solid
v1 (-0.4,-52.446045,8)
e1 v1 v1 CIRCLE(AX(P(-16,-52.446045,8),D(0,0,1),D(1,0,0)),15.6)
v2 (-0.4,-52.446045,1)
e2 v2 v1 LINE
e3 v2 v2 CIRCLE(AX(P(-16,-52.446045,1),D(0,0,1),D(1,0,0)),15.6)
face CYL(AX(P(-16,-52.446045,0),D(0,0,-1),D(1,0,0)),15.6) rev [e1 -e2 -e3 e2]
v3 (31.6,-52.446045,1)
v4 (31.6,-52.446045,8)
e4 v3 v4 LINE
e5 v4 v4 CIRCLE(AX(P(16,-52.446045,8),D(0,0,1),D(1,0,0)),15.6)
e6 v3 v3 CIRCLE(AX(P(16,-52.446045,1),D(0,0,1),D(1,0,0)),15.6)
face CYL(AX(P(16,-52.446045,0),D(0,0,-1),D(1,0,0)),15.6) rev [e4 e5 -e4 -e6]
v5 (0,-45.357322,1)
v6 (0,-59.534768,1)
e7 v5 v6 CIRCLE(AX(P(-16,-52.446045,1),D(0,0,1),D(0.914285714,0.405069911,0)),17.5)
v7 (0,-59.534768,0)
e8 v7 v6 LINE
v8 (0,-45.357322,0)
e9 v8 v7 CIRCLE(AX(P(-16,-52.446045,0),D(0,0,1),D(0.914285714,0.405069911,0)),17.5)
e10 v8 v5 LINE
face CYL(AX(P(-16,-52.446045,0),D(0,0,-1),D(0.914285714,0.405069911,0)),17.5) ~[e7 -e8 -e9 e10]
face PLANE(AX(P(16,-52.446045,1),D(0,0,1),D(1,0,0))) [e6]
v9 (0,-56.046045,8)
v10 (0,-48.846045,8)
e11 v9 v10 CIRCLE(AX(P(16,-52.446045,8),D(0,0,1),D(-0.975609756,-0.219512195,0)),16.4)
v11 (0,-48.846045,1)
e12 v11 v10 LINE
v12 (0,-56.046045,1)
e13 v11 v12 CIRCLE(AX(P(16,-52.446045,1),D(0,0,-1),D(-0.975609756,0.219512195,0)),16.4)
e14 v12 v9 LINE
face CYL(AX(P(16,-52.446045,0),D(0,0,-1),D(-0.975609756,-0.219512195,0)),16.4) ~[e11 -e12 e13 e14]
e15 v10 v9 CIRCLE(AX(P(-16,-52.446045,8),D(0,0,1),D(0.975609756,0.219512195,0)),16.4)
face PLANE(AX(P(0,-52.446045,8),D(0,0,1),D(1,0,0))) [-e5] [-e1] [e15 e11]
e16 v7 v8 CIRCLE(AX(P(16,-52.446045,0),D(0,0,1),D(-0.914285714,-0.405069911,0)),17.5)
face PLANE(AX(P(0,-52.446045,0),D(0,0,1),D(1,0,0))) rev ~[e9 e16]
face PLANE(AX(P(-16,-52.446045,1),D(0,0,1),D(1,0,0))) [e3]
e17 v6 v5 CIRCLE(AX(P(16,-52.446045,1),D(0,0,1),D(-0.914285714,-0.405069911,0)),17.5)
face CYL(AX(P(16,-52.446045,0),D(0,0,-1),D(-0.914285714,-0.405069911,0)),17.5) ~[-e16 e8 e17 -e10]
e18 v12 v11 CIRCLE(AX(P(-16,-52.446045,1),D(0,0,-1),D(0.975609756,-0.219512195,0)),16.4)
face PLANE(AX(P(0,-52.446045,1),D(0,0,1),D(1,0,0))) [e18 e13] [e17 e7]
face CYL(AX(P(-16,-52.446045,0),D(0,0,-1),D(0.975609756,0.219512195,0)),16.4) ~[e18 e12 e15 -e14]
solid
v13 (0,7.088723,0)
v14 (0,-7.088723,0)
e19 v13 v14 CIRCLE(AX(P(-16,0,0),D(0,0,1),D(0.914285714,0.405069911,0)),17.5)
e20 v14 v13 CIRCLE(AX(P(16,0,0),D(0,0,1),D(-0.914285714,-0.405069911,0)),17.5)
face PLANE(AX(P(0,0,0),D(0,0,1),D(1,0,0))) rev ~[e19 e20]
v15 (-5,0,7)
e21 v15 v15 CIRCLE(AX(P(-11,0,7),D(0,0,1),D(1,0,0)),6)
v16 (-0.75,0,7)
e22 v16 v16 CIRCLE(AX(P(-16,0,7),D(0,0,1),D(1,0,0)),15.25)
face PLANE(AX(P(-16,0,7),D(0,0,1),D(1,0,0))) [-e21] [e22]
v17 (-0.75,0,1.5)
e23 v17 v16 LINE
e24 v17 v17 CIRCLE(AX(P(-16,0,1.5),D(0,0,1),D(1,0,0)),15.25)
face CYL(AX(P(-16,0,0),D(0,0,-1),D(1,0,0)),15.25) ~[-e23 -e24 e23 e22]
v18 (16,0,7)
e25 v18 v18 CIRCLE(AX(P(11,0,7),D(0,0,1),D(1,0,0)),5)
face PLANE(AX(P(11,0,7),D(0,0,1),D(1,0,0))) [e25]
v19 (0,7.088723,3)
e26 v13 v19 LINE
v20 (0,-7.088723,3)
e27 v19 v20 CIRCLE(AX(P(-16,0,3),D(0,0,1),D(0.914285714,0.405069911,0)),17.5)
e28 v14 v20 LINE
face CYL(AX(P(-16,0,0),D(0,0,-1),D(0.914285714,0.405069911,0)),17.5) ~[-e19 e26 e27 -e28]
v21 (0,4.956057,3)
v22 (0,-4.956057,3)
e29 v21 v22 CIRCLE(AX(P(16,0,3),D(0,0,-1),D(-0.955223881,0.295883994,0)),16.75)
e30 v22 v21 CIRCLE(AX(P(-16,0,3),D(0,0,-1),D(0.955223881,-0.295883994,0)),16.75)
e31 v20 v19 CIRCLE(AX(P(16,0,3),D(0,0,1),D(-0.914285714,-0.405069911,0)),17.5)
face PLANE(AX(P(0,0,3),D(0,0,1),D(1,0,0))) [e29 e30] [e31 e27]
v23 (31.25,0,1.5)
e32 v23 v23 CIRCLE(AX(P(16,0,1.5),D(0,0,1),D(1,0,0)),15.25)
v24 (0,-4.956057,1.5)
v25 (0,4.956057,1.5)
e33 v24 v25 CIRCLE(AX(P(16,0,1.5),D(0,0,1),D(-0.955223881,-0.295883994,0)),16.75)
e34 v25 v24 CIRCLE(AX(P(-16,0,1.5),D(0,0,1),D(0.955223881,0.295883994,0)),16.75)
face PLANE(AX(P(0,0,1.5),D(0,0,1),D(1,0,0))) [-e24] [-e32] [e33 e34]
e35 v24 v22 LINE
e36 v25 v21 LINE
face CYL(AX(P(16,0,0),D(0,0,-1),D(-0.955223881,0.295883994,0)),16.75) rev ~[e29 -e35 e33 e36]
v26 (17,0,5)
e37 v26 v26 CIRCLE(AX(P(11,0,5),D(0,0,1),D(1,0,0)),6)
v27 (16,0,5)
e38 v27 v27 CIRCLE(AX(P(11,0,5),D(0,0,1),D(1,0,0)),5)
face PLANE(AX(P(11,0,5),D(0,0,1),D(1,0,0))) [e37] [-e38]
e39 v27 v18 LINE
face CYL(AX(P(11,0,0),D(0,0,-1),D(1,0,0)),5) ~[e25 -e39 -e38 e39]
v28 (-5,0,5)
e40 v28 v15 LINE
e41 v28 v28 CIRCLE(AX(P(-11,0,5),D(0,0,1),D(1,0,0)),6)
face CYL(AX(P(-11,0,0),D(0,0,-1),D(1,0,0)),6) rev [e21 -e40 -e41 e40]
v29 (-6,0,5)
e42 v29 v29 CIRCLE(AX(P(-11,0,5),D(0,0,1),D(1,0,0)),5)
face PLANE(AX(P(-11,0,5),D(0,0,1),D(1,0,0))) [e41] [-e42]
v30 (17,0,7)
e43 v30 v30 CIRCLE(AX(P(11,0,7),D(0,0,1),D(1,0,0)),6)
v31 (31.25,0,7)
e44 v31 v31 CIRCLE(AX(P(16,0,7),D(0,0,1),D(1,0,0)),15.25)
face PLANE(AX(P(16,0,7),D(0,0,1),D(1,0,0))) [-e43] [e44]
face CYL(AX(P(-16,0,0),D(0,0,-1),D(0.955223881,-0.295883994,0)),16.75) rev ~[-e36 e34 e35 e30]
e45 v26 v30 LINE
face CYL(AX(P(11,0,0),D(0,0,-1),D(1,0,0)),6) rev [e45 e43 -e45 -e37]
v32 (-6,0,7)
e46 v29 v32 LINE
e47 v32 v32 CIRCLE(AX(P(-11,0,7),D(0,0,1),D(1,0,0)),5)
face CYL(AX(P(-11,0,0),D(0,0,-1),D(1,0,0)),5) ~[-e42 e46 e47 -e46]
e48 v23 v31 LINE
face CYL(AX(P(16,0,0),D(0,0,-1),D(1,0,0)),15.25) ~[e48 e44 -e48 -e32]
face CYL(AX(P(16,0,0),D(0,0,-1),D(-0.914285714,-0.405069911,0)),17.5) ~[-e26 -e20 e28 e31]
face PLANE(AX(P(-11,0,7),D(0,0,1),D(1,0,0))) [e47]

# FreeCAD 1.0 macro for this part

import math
import FreeCAD as App
import Part
import Sketcher

V = App.Vector
Q = App.Units.Quantity

doc = App.newDocument("Part")
body = doc.addObject("PartDesign::Body", "Body")

# Sketch on XY plane
sketch1 = doc.addObject("Sketcher::SketchObject", "Sketch")
body.addObject(sketch1)
sketch1.AttachmentSupport = (doc.XY_Plane, [""])
sketch1.MapMode = "FlatFace"
sketch1.addGeometry(Part.Circle(V(-11, 0, 0), V(0, 0, 1), 5), False)
sketch1.addConstraint(Sketcher.Constraint("PointOnObject", 0, 3, -1))
sketch1.addConstraint(Sketcher.Constraint("Diameter", 0, Q("10 mm")))
sketch1.addConstraint(Sketcher.Constraint("DistanceX", 0, 3, -1, 1, Q("11 mm")))
pad1 = doc.addObject("PartDesign::Pad", "Pad")
body.addObject(pad1)
pad1.Profile = sketch1
pad1.Length = 7
body2 = doc.addObject("PartDesign::Body", "Body001")

# Sketch on XY plane
sketch2 = doc.addObject("Sketcher::SketchObject", "Sketch001")
body2.addObject(sketch2)
sketch2.AttachmentSupport = (doc.getObject("XY_Plane001"), [""])
sketch2.MapMode = "FlatFace"
sketch2.addGeometry(Part.Circle(V(11, 0, 0), V(0, 0, 1), 5), False)
sketch2.addConstraint(Sketcher.Constraint("PointOnObject", 0, 3, -1))
sketch2.addConstraint(Sketcher.Constraint("Diameter", 0, Q("10 mm")))
sketch2.addConstraint(Sketcher.Constraint("DistanceX", -1, 1, 0, 3, Q("11 mm")))
pad2 = doc.addObject("PartDesign::Pad", "Pad001")
body2.addObject(pad2)
pad2.Profile = sketch2
pad2.Length = 7
body3 = doc.addObject("PartDesign::Body", "Body002")

# Sketch on XY plane
sketch3 = doc.addObject("Sketcher::SketchObject", "Sketch002")
body3.addObject(sketch3)
sketch3.AttachmentSupport = (doc.getObject("XY_Plane002"), [""])
sketch3.MapMode = "FlatFace"
sketch3.addGeometry(Part.Circle(V(-16, 0, 0), V(0, 0, 1), 15), False)
sketch3.addGeometry(Part.Circle(V(-11, 0, 0), V(0, 0, 1), 6), False)
sketch3.addConstraint(Sketcher.Constraint("PointOnObject", 0, 3, -1))
sketch3.addConstraint(Sketcher.Constraint("PointOnObject", 1, 3, -1))
sketch3.addConstraint(Sketcher.Constraint("Diameter", 1, Q("12 mm")))
sketch3.addConstraint(Sketcher.Constraint("Diameter", 0, Q("30.5 mm")))
sketch3.addConstraint(Sketcher.Constraint("DistanceX", 0, 3, -1, 1, Q("16 mm")))
sketch3.addConstraint(Sketcher.Constraint("DistanceX", 1, 3, -1, 1, Q("11 mm")))
pad3 = doc.addObject("PartDesign::Pad", "Pad002")
body3.addObject(pad3)
pad3.Profile = sketch3
pad3.Length = 7
body4 = doc.addObject("PartDesign::Body", "Body003")

# Sketch on XY plane
sketch4 = doc.addObject("Sketcher::SketchObject", "Sketch003")
body4.addObject(sketch4)
sketch4.AttachmentSupport = (doc.getObject("XY_Plane003"), [""])
sketch4.MapMode = "FlatFace"
sketch4.addGeometry(Part.Circle(V(16, 0, 0), V(0, 0, 1), 15), False)
sketch4.addGeometry(Part.Circle(V(11, 0, 0), V(0, 0, 1), 6), False)
sketch4.addConstraint(Sketcher.Constraint("PointOnObject", 0, 3, -1))
sketch4.addConstraint(Sketcher.Constraint("PointOnObject", 1, 3, -1))
sketch4.addConstraint(Sketcher.Constraint("Diameter", 1, Q("12 mm")))
sketch4.addConstraint(Sketcher.Constraint("Diameter", 0, Q("30.5 mm")))
sketch4.addConstraint(Sketcher.Constraint("DistanceX", -1, 1, 0, 3, Q("16 mm")))
sketch4.addConstraint(Sketcher.Constraint("DistanceX", -1, 1, 1, 3, Q("11 mm")))
pad4 = doc.addObject("PartDesign::Pad", "Pad003")
body4.addObject(pad4)
pad4.Profile = sketch4
pad4.Length = 7
body.AllowCompound = True
doc.recompute()

boolean = doc.addObject("PartDesign::Boolean", "Boolean")
body.addObject(boolean)
boolean.Type = "Fuse"
boolean.addObjects([body3])

# Sketch on XY plane
sketch5 = doc.addObject("Sketcher::SketchObject", "Sketch004")
body.addObject(sketch5)
sketch5.AttachmentSupport = (doc.XY_Plane, [""])
sketch5.MapMode = "FlatFace"
sketch5.addGeometry(Part.Circle(V(-11, 0, 0), V(0, 0, 1), 6), False)
sketch5.addGeometry(Part.Circle(V(-11, 0, 0), V(0, 0, 1), 5), False)
sketch5.addConstraint(Sketcher.Constraint("Coincident", 1, 3, 0, 3))
sketch5.addConstraint(Sketcher.Constraint("PointOnObject", 0, 3, -1))
sketch5.addConstraint(Sketcher.Constraint("Diameter", 0, Q("12 mm")))
sketch5.addConstraint(Sketcher.Constraint("Diameter", 1, Q("10 mm")))
sketch5.addConstraint(Sketcher.Constraint("DistanceX", 0, 3, -1, 1, Q("11 mm")))
pad5 = doc.addObject("PartDesign::Pad", "Pad004")
body.addObject(pad5)
pad5.Profile = sketch5
pad5.Length = 5
body2.AllowCompound = True
doc.recompute()

boolean2 = doc.addObject("PartDesign::Boolean", "Boolean001")
body2.addObject(boolean2)
boolean2.Type = "Fuse"
boolean2.addObjects([body4])

# Sketch on XY plane
sketch6 = doc.addObject("Sketcher::SketchObject", "Sketch005")
body2.addObject(sketch6)
sketch6.AttachmentSupport = (doc.getObject("XY_Plane001"), [""])
sketch6.MapMode = "FlatFace"
sketch6.addGeometry(Part.Circle(V(11, 0, 0), V(0, 0, 1), 6), False)
sketch6.addGeometry(Part.Circle(V(11, 0, 0), V(0, 0, 1), 5), False)
sketch6.addConstraint(Sketcher.Constraint("Coincident", 1, 3, 0, 3))
sketch6.addConstraint(Sketcher.Constraint("PointOnObject", 0, 3, -1))
sketch6.addConstraint(Sketcher.Constraint("Diameter", 0, Q("12 mm")))
sketch6.addConstraint(Sketcher.Constraint("Diameter", 1, Q("10 mm")))
sketch6.addConstraint(Sketcher.Constraint("DistanceX", -1, 1, 0, 3, Q("11 mm")))
pad6 = doc.addObject("PartDesign::Pad", "Pad005")
body2.addObject(pad6)
pad6.Profile = sketch6
pad6.Length = 5
body.AllowCompound = True
doc.recompute()

boolean3 = doc.addObject("PartDesign::Boolean", "Boolean002")
body.addObject(boolean3)
boolean3.Type = "Fuse"
boolean3.addObjects([body2])

# Sketch on XY plane
sketch7 = doc.addObject("Sketcher::SketchObject", "Sketch006")
body.addObject(sketch7)
sketch7.AttachmentSupport = (doc.XY_Plane, [""])
sketch7.MapMode = "FlatFace"
sketch7.addGeometry(Part.ArcOfCircle(Part.Circle(V(16, 0, 0), V(0, 0, 1), 17), math.radians(-163), math.radians(163)), False)
sketch7.addGeometry(Part.ArcOfCircle(Part.Circle(V(-16, 0, 0), V(0, 0, 1), 17), math.radians(17), math.radians(343)), False)
sketch7.addGeometry(Part.Circle(V(-16, 0, 0), V(0, 0, 1), 15), False)
sketch7.addGeometry(Part.Circle(V(16, 0, 0), V(0, 0, 1), 15), False)
sketch7.addConstraint(Sketcher.Constraint("Coincident", 0, 1, 1, 2))
sketch7.addConstraint(Sketcher.Constraint("Coincident", 1, 1, 0, 2))
sketch7.addConstraint(Sketcher.Constraint("Coincident", 2, 3, 1, 3))
sketch7.addConstraint(Sketcher.Constraint("Coincident", 3, 3, 0, 3))
sketch7.addConstraint(Sketcher.Constraint("Equal", 0, 1))
sketch7.addConstraint(Sketcher.Constraint("Equal", 2, 3))
sketch7.addConstraint(Sketcher.Constraint("Symmetric", 0, 3, 1, 3, -1, 1))
sketch7.addConstraint(Sketcher.Constraint("PointOnObject", 0, 3, -1))
sketch7.addConstraint(Sketcher.Constraint("Diameter", 2, Q("30.5 mm")))
sketch7.addConstraint(Sketcher.Constraint("Radius", 0, Q("16.75 mm")))
sketch7.addConstraint(Sketcher.Constraint("DistanceX", -1, 1, 0, 3, Q("16 mm")))
pad7 = doc.addObject("PartDesign::Pad", "Pad006")
body.addObject(pad7)
pad7.Profile = sketch7
pad7.Length = 1.5

# Sketch on XY plane
sketch8 = doc.addObject("Sketcher::SketchObject", "Sketch007")
body.addObject(sketch8)
sketch8.AttachmentSupport = (doc.XY_Plane, [""])
sketch8.MapMode = "FlatFace"
sketch8.addGeometry(Part.ArcOfCircle(Part.Circle(V(16, 0, 0), V(0, 0, 1), 18), math.radians(-156), math.radians(156)), False)
sketch8.addGeometry(Part.ArcOfCircle(Part.Circle(V(-16, 0, 0), V(0, 0, 1), 18), math.radians(24), math.radians(336)), False)
sketch8.addGeometry(Part.ArcOfCircle(Part.Circle(V(16, 0, 0), V(0, 0, 1), 17), math.radians(-163), math.radians(163)), False)
sketch8.addGeometry(Part.ArcOfCircle(Part.Circle(V(-16, 0, 0), V(0, 0, 1), 17), math.radians(17), math.radians(343)), False)
sketch8.addConstraint(Sketcher.Constraint("Coincident", 0, 1, 1, 2))
sketch8.addConstraint(Sketcher.Constraint("Coincident", 1, 1, 0, 2))
sketch8.addConstraint(Sketcher.Constraint("Coincident", 2, 1, 3, 2))
sketch8.addConstraint(Sketcher.Constraint("Coincident", 3, 1, 2, 2))
sketch8.addConstraint(Sketcher.Constraint("Coincident", 2, 3, 0, 3))
sketch8.addConstraint(Sketcher.Constraint("Coincident", 3, 3, 1, 3))
sketch8.addConstraint(Sketcher.Constraint("Equal", 0, 1))
sketch8.addConstraint(Sketcher.Constraint("Equal", 2, 3))
sketch8.addConstraint(Sketcher.Constraint("Symmetric", 0, 3, 1, 3, -1, 1))
sketch8.addConstraint(Sketcher.Constraint("PointOnObject", 0, 3, -1))
sketch8.addConstraint(Sketcher.Constraint("Radius", 0, Q("17.5 mm")))
sketch8.addConstraint(Sketcher.Constraint("Radius", 2, Q("16.75 mm")))
sketch8.addConstraint(Sketcher.Constraint("DistanceX", -1, 1, 0, 3, Q("16 mm")))
pad8 = doc.addObject("PartDesign::Pad", "Pad007")
body.addObject(pad8)
pad8.Profile = sketch8
pad8.Length = 3
body5 = doc.addObject("PartDesign::Body", "Body004")

# Sketch on XY plane
sketch9 = doc.addObject("Sketcher::SketchObject", "Sketch008")
body5.addObject(sketch9)
sketch9.AttachmentSupport = (doc.getObject("XY_Plane004"), [""])
sketch9.MapMode = "FlatFace"
sketch9.addGeometry(Part.ArcOfCircle(Part.Circle(V(16, -52, 0), V(0, 0, 1), 16), math.radians(-167), math.radians(167)), False)
sketch9.addGeometry(Part.ArcOfCircle(Part.Circle(V(-16, -52, 0), V(0, 0, 1), 16), math.radians(13), math.radians(347)), False)
sketch9.addGeometry(Part.Circle(V(-16, -52, 0), V(0, 0, 1), 16), False)
sketch9.addGeometry(Part.Circle(V(16, -52, 0), V(0, 0, 1), 16), False)
sketch9.addConstraint(Sketcher.Constraint("Coincident", 0, 1, 1, 2))
sketch9.addConstraint(Sketcher.Constraint("Coincident", 1, 1, 0, 2))
sketch9.addConstraint(Sketcher.Constraint("Coincident", 2, 3, 1, 3))
sketch9.addConstraint(Sketcher.Constraint("Coincident", 3, 3, 0, 3))
sketch9.addConstraint(Sketcher.Constraint("Equal", 0, 1))
sketch9.addConstraint(Sketcher.Constraint("Equal", 2, 3))
sketch9.addConstraint(Sketcher.Constraint("Symmetric", 0, 3, 1, 3, -2))
sketch9.addConstraint(Sketcher.Constraint("Diameter", 2, Q("31.2 mm")))
sketch9.addConstraint(Sketcher.Constraint("Radius", 0, Q("16.4 mm")))
sketch9.addConstraint(Sketcher.Constraint("DistanceX", -1, 1, 0, 3, Q("16 mm")))
sketch9.addConstraint(Sketcher.Constraint("DistanceY", 0, 3, -1, 1, Q("52.446045 mm")))
pad9 = doc.addObject("PartDesign::Pad", "Pad008")
body5.addObject(pad9)
pad9.Profile = sketch9
pad9.Length = 8

# Sketch on XY plane
sketch10 = doc.addObject("Sketcher::SketchObject", "Sketch009")
body5.addObject(sketch10)
sketch10.AttachmentSupport = (doc.getObject("XY_Plane004"), [""])
sketch10.MapMode = "FlatFace"
sketch10.addGeometry(Part.ArcOfCircle(Part.Circle(V(-16, -52, 0), V(0, 0, 1), 18), math.radians(24), math.radians(336)), False)
sketch10.addGeometry(Part.ArcOfCircle(Part.Circle(V(16, -52, 0), V(0, 0, 1), 18), math.radians(-156), math.radians(156)), False)
sketch10.addGeometry(Part.ArcOfCircle(Part.Circle(V(16, -52, 0), V(0, 0, 1), 16), math.radians(-167), math.radians(167)), False)
sketch10.addGeometry(Part.ArcOfCircle(Part.Circle(V(-16, -52, 0), V(0, 0, 1), 16), math.radians(13), math.radians(347)), False)
sketch10.addGeometry(Part.Circle(V(-16, -52, 0), V(0, 0, 1), 16), False)
sketch10.addGeometry(Part.Circle(V(16, -52, 0), V(0, 0, 1), 16), False)
sketch10.addConstraint(Sketcher.Constraint("Coincident", 0, 1, 1, 2))
sketch10.addConstraint(Sketcher.Constraint("Coincident", 1, 1, 0, 2))
sketch10.addConstraint(Sketcher.Constraint("Coincident", 2, 1, 3, 2))
sketch10.addConstraint(Sketcher.Constraint("Coincident", 3, 1, 2, 2))
sketch10.addConstraint(Sketcher.Constraint("Coincident", 2, 3, 1, 3))
sketch10.addConstraint(Sketcher.Constraint("Coincident", 3, 3, 0, 3))
sketch10.addConstraint(Sketcher.Constraint("Coincident", 4, 3, 0, 3))
sketch10.addConstraint(Sketcher.Constraint("Coincident", 5, 3, 1, 3))
sketch10.addConstraint(Sketcher.Constraint("Equal", 0, 1))
sketch10.addConstraint(Sketcher.Constraint("Equal", 2, 3))
sketch10.addConstraint(Sketcher.Constraint("Equal", 4, 5))
sketch10.addConstraint(Sketcher.Constraint("Symmetric", 0, 3, 1, 3, -2))
sketch10.addConstraint(Sketcher.Constraint("Diameter", 4, Q("31.2 mm")))
sketch10.addConstraint(Sketcher.Constraint("Radius", 0, Q("17.5 mm")))
sketch10.addConstraint(Sketcher.Constraint("Radius", 2, Q("16.4 mm")))
sketch10.addConstraint(Sketcher.Constraint("DistanceX", 0, 3, -1, 1, Q("16 mm")))
sketch10.addConstraint(Sketcher.Constraint("DistanceY", 0, 1, -1, 1, Q("45.357322 mm")))
pad10 = doc.addObject("PartDesign::Pad", "Pad009")
body5.addObject(pad10)
pad10.Profile = sketch10
pad10.Length = 1

doc.recompute()
